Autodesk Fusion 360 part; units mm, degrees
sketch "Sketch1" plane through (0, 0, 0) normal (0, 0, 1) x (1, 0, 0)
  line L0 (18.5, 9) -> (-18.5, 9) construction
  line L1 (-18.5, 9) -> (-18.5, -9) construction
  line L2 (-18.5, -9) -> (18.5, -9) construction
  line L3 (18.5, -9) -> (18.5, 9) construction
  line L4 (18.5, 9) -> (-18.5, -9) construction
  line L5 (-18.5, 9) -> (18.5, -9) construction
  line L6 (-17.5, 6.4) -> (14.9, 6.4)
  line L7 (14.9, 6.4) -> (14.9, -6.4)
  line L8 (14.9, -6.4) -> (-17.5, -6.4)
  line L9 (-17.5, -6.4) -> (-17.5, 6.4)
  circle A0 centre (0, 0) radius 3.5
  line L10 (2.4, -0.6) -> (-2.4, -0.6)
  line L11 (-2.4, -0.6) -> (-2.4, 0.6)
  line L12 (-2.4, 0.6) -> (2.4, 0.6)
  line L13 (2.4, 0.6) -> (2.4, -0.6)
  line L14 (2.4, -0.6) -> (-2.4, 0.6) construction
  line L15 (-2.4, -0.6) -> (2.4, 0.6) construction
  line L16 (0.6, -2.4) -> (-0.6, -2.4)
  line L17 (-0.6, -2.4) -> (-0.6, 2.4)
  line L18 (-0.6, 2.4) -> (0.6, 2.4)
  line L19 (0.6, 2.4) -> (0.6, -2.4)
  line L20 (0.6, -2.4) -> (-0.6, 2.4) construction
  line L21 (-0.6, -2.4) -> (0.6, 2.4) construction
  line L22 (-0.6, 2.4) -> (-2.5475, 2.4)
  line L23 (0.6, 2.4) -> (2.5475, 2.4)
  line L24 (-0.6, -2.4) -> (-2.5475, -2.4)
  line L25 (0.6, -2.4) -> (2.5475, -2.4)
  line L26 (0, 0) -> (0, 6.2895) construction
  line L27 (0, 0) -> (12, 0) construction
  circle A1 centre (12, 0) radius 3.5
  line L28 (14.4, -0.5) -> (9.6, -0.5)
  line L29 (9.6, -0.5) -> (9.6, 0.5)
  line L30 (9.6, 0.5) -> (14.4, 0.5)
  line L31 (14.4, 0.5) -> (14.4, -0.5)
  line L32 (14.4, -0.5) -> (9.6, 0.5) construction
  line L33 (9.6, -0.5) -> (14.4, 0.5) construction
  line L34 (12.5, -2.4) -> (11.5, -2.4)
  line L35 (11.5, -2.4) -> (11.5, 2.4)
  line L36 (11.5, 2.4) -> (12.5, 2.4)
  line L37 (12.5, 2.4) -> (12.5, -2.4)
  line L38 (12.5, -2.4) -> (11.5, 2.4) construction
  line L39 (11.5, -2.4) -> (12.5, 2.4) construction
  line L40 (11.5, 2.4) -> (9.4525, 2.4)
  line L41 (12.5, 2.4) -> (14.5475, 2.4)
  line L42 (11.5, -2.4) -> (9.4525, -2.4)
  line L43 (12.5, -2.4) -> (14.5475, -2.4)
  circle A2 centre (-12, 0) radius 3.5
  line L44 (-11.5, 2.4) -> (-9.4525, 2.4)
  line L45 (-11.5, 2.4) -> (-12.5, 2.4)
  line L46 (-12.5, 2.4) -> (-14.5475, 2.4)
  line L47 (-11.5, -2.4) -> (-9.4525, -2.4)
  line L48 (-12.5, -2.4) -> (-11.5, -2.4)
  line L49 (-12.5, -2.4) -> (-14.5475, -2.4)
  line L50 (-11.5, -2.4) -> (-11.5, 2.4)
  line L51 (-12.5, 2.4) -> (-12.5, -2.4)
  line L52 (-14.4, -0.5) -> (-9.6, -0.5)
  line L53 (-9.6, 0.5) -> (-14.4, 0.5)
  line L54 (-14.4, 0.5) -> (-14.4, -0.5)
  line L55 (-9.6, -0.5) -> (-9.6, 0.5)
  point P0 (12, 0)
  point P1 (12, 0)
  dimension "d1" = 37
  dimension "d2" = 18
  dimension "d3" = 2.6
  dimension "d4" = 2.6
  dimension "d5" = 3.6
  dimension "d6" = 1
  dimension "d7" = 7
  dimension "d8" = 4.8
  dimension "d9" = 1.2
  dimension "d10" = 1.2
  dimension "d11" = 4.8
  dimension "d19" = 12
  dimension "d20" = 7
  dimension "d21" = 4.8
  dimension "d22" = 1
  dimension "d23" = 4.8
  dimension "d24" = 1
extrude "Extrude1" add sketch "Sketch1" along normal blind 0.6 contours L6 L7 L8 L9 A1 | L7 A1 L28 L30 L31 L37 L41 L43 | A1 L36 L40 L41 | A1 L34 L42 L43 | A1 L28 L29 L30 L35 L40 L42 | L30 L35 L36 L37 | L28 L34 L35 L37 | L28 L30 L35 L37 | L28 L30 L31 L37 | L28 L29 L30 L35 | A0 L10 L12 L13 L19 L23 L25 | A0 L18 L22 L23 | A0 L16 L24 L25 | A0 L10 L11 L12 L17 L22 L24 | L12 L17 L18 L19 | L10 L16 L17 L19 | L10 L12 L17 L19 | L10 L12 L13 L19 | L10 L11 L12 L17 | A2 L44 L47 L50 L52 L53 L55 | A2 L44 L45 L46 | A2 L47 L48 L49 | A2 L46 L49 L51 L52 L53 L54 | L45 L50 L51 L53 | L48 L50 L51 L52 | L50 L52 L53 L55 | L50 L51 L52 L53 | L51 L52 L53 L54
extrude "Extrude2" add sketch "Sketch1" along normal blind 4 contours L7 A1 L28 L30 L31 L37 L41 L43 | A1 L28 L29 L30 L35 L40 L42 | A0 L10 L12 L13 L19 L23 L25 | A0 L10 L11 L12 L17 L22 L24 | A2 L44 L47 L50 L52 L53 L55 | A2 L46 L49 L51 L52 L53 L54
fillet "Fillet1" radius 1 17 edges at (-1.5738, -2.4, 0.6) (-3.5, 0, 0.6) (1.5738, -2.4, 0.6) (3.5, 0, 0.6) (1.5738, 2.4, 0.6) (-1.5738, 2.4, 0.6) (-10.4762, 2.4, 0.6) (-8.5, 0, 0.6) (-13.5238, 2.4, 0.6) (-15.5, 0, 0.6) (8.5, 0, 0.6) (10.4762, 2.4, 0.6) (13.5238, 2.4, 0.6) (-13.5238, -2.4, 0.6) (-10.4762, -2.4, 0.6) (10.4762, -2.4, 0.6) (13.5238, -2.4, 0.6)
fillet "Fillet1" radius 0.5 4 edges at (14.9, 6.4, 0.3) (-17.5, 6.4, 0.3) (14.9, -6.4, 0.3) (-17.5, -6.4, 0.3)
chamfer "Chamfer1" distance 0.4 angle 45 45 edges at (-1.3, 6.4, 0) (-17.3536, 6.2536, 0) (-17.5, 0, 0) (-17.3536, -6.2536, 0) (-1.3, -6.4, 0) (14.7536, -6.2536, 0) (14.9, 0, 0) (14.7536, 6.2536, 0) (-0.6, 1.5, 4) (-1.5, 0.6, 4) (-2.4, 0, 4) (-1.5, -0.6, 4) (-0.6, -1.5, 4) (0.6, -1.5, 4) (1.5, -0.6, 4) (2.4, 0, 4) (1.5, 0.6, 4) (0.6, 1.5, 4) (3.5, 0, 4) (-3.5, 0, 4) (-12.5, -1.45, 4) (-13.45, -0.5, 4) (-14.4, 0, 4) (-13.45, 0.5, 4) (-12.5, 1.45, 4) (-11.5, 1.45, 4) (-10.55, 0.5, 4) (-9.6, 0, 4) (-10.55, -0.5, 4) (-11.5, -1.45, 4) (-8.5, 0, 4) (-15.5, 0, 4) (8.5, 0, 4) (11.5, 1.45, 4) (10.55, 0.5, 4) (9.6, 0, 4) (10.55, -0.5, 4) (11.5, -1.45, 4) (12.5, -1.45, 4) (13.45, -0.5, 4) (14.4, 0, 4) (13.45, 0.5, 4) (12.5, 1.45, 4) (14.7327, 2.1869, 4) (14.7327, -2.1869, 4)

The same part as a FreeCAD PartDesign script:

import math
import FreeCAD as App
import Part
import Sketcher
Q = App.Units.Quantity


def edges_at(feature, points):
    """Names of the edges that pass closest to the given points."""
    edges = feature.Shape.Edges
    near = lambda p: min(range(len(edges)), key=lambda i: edges[i].distToShape(Part.Vertex(*p))[0])
    return sorted({f"Edge{near(p) + 1}" for p in points})


def add_polygon(sketch, points):
    """Adds a closed chain of lines whose ends are joined by coincident constraints."""
    first, n = sketch.GeometryCount, len(points)
    for a, b in zip(points, points[1:] + points[:1]):
        sketch.addGeometry(Part.LineSegment(App.Vector(*a, 0), App.Vector(*b, 0)), False)
    for i in range(n):
        sketch.addConstraint(Sketcher.Constraint("Coincident", first + i, 2, first + (i + 1) % n, 1))

doc = App.newDocument("Part")
body = doc.addObject("PartDesign::Body", "Body")

sketch1 = body.newObject("Sketcher::SketchObject", "Sketch")
sketch1.AttachmentSupport = (doc.getObject("XY_Plane"), [""])
sketch1.MapMode = "FlatFace"
add_polygon(sketch1, [(15, 6), (-18, 6), (-18, -6), (15, -6)])
sketch1.addConstraint(Sketcher.Constraint("Horizontal", 0))
sketch1.addConstraint(Sketcher.Constraint("Vertical", 1))
sketch1.addConstraint(Sketcher.Constraint("Horizontal", 2))
sketch1.addConstraint(Sketcher.Constraint("Vertical", 3))
sketch1.addConstraint(Sketcher.Constraint("DistanceX", 0, 2, 0, 1, Q("32.4 mm")))
sketch1.addConstraint(Sketcher.Constraint("DistanceY", 1, 2, 1, 1, Q("12.8 mm")))
sketch1.addConstraint(Sketcher.Constraint("DistanceX", 0, 2, -1, 1, Q("17.5 mm")))
sketch1.addConstraint(Sketcher.Constraint("DistanceY", -1, 1, 0, 2, Q("6.4 mm")))
pad1 = body.newObject("PartDesign::Pad", "Pad")
pad1.Profile = sketch1
pad1.Length = 0.6

sketch2 = body.newObject("Sketcher::SketchObject", "Sketch001")
sketch2.AttachmentSupport = (doc.getObject("XY_Plane"), [""])
sketch2.MapMode = "FlatFace"
sketch2.addGeometry(Part.LineSegment(App.Vector(14.9, -2, 0), App.Vector(14.9, 2, 0)), False)
sketch2.addGeometry(Part.ArcOfCircle(Part.Circle(App.Vector(12, 0, 0), App.Vector(0, 0, 1), 3.5), math.radians(34.05), math.radians(43.29)), False)
sketch2.addGeometry(Part.LineSegment(App.Vector(14.5, 2.4, 0), App.Vector(12.5, 2.4, 0)), False)
sketch2.addGeometry(Part.LineSegment(App.Vector(12.5, 2.4, 0), App.Vector(12.5, 0.5, 0)), False)
sketch2.addGeometry(Part.LineSegment(App.Vector(12.5, 0.5, 0), App.Vector(14.4, 0.5, 0)), False)
sketch2.addGeometry(Part.LineSegment(App.Vector(14.4, 0.5, 0), App.Vector(14.4, -0.5, 0)), False)
sketch2.addGeometry(Part.LineSegment(App.Vector(14.4, -0.5, 0), App.Vector(12.5, -0.5, 0)), False)
sketch2.addGeometry(Part.LineSegment(App.Vector(12.5, -0.5, 0), App.Vector(12.5, -2.4, 0)), False)
sketch2.addGeometry(Part.LineSegment(App.Vector(12.5, -2.4, 0), App.Vector(14.5, -2.4, 0)), False)
sketch2.addGeometry(Part.ArcOfCircle(Part.Circle(App.Vector(12, 0, 0), App.Vector(0, 0, 1), 3.5), math.radians(-43.29), math.radians(-34.05)), False)
sketch2.addGeometry(Part.LineSegment(App.Vector(11.5, 2.4, 0), App.Vector(9.5, 2.4, 0)), False)
sketch2.addGeometry(Part.ArcOfCircle(Part.Circle(App.Vector(12, 0, 0), App.Vector(0, 0, 1), 3.5), math.radians(137), math.radians(223)), False)
sketch2.addGeometry(Part.LineSegment(App.Vector(9.5, -2.4, 0), App.Vector(11.5, -2.4, 0)), False)
sketch2.addGeometry(Part.LineSegment(App.Vector(11.5, -2.4, 0), App.Vector(11.5, -0.5, 0)), False)
sketch2.addGeometry(Part.LineSegment(App.Vector(11.5, -0.5, 0), App.Vector(9.6, -0.5, 0)), False)
sketch2.addGeometry(Part.LineSegment(App.Vector(9.6, -0.5, 0), App.Vector(9.6, 0.5, 0)), False)
sketch2.addGeometry(Part.LineSegment(App.Vector(9.6, 0.5, 0), App.Vector(11.5, 0.5, 0)), False)
sketch2.addGeometry(Part.LineSegment(App.Vector(11.5, 0.5, 0), App.Vector(11.5, 2.4, 0)), False)
sketch2.addGeometry(Part.ArcOfCircle(Part.Circle(App.Vector(0, 0, 0), App.Vector(0, 0, 1), 3.5), math.radians(-43), math.radians(43)), False)
sketch2.addGeometry(Part.LineSegment(App.Vector(2.5, 2.4, 0), App.Vector(0.6, 2.4, 0)), False)
sketch2.addGeometry(Part.LineSegment(App.Vector(0.6, 2.4, 0), App.Vector(0.6, 0.6, 0)), False)
sketch2.addGeometry(Part.LineSegment(App.Vector(0.6, 0.6, 0), App.Vector(2.4, 0.6, 0)), False)
sketch2.addGeometry(Part.LineSegment(App.Vector(2.4, 0.6, 0), App.Vector(2.4, -0.6, 0)), False)
sketch2.addGeometry(Part.LineSegment(App.Vector(2.4, -0.6, 0), App.Vector(0.6, -0.6, 0)), False)
sketch2.addGeometry(Part.LineSegment(App.Vector(0.6, -0.6, 0), App.Vector(0.6, -2.4, 0)), False)
sketch2.addGeometry(Part.LineSegment(App.Vector(0.6, -2.4, 0), App.Vector(2.5, -2.4, 0)), False)
sketch2.addGeometry(Part.LineSegment(App.Vector(-0.6, 2.4, 0), App.Vector(-2.5, 2.4, 0)), False)
sketch2.addGeometry(Part.ArcOfCircle(Part.Circle(App.Vector(0, 0, 0), App.Vector(0, 0, 1), 3.5), math.radians(137), math.radians(223)), False)
sketch2.addGeometry(Part.LineSegment(App.Vector(-2.5, -2.4, 0), App.Vector(-0.6, -2.4, 0)), False)
sketch2.addGeometry(Part.LineSegment(App.Vector(-0.6, -2.4, 0), App.Vector(-0.6, -0.6, 0)), False)
sketch2.addGeometry(Part.LineSegment(App.Vector(-0.6, -0.6, 0), App.Vector(-2.4, -0.6, 0)), False)
sketch2.addGeometry(Part.LineSegment(App.Vector(-2.4, -0.6, 0), App.Vector(-2.4, 0.6, 0)), False)
sketch2.addGeometry(Part.LineSegment(App.Vector(-2.4, 0.6, 0), App.Vector(-0.6, 0.6, 0)), False)
sketch2.addGeometry(Part.LineSegment(App.Vector(-0.6, 0.6, 0), App.Vector(-0.6, 2.4, 0)), False)
sketch2.addGeometry(Part.ArcOfCircle(Part.Circle(App.Vector(-12, 0, 0), App.Vector(0, 0, 1), 3.5), math.radians(-43), math.radians(43)), False)
sketch2.addGeometry(Part.LineSegment(App.Vector(-9.5, 2.4, 0), App.Vector(-11.5, 2.4, 0)), False)
sketch2.addGeometry(Part.LineSegment(App.Vector(-11.5, 2.4, 0), App.Vector(-11.5, 0.5, 0)), False)
sketch2.addGeometry(Part.LineSegment(App.Vector(-11.5, 0.5, 0), App.Vector(-9.6, 0.5, 0)), False)
sketch2.addGeometry(Part.LineSegment(App.Vector(-9.6, 0.5, 0), App.Vector(-9.6, -0.5, 0)), False)
sketch2.addGeometry(Part.LineSegment(App.Vector(-9.6, -0.5, 0), App.Vector(-11.5, -0.5, 0)), False)
sketch2.addGeometry(Part.LineSegment(App.Vector(-11.5, -0.5, 0), App.Vector(-11.5, -2.4, 0)), False)
sketch2.addGeometry(Part.LineSegment(App.Vector(-11.5, -2.4, 0), App.Vector(-9.5, -2.4, 0)), False)
sketch2.addGeometry(Part.LineSegment(App.Vector(-12.5, 2.4, 0), App.Vector(-14.5, 2.4, 0)), False)
sketch2.addGeometry(Part.ArcOfCircle(Part.Circle(App.Vector(-12, 0, 0), App.Vector(0, 0, 1), 3.5), math.radians(137), math.radians(223)), False)
sketch2.addGeometry(Part.LineSegment(App.Vector(-14.5, -2.4, 0), App.Vector(-12.5, -2.4, 0)), False)
sketch2.addGeometry(Part.LineSegment(App.Vector(-12.5, -2.4, 0), App.Vector(-12.5, -0.5, 0)), False)
sketch2.addGeometry(Part.LineSegment(App.Vector(-12.5, -0.5, 0), App.Vector(-14.4, -0.5, 0)), False)
sketch2.addGeometry(Part.LineSegment(App.Vector(-14.4, -0.5, 0), App.Vector(-14.4, 0.5, 0)), False)
sketch2.addGeometry(Part.LineSegment(App.Vector(-14.4, 0.5, 0), App.Vector(-12.5, 0.5, 0)), False)
sketch2.addGeometry(Part.LineSegment(App.Vector(-12.5, 0.5, 0), App.Vector(-12.5, 2.4, 0)), False)
sketch2.addConstraint(Sketcher.Constraint("Coincident", 0, 2, 1, 1))
sketch2.addConstraint(Sketcher.Constraint("Coincident", 1, 2, 2, 1))
sketch2.addConstraint(Sketcher.Constraint("Coincident", 2, 2, 3, 1))
sketch2.addConstraint(Sketcher.Constraint("Coincident", 3, 2, 4, 1))
sketch2.addConstraint(Sketcher.Constraint("Coincident", 4, 2, 5, 1))
sketch2.addConstraint(Sketcher.Constraint("Coincident", 5, 2, 6, 1))
sketch2.addConstraint(Sketcher.Constraint("Coincident", 6, 2, 7, 1))
sketch2.addConstraint(Sketcher.Constraint("Coincident", 7, 2, 8, 1))
sketch2.addConstraint(Sketcher.Constraint("Coincident", 8, 2, 9, 1))
sketch2.addConstraint(Sketcher.Constraint("Coincident", 9, 2, 0, 1))
sketch2.addConstraint(Sketcher.Constraint("Coincident", 10, 2, 11, 1))
sketch2.addConstraint(Sketcher.Constraint("Coincident", 11, 2, 12, 1))
sketch2.addConstraint(Sketcher.Constraint("Coincident", 12, 2, 13, 1))
sketch2.addConstraint(Sketcher.Constraint("Coincident", 13, 2, 14, 1))
sketch2.addConstraint(Sketcher.Constraint("Coincident", 14, 2, 15, 1))
sketch2.addConstraint(Sketcher.Constraint("Coincident", 15, 2, 16, 1))
sketch2.addConstraint(Sketcher.Constraint("Coincident", 16, 2, 17, 1))
sketch2.addConstraint(Sketcher.Constraint("Coincident", 17, 2, 10, 1))
sketch2.addConstraint(Sketcher.Constraint("Coincident", 18, 2, 19, 1))
sketch2.addConstraint(Sketcher.Constraint("Coincident", 19, 2, 20, 1))
sketch2.addConstraint(Sketcher.Constraint("Coincident", 20, 2, 21, 1))
sketch2.addConstraint(Sketcher.Constraint("Coincident", 21, 2, 22, 1))
sketch2.addConstraint(Sketcher.Constraint("Coincident", 22, 2, 23, 1))
sketch2.addConstraint(Sketcher.Constraint("Coincident", 23, 2, 24, 1))
sketch2.addConstraint(Sketcher.Constraint("Coincident", 24, 2, 25, 1))
sketch2.addConstraint(Sketcher.Constraint("Coincident", 25, 2, 18, 1))
sketch2.addConstraint(Sketcher.Constraint("Coincident", 26, 2, 27, 1))
sketch2.addConstraint(Sketcher.Constraint("Coincident", 27, 2, 28, 1))
sketch2.addConstraint(Sketcher.Constraint("Coincident", 28, 2, 29, 1))
sketch2.addConstraint(Sketcher.Constraint("Coincident", 29, 2, 30, 1))
sketch2.addConstraint(Sketcher.Constraint("Coincident", 30, 2, 31, 1))
sketch2.addConstraint(Sketcher.Constraint("Coincident", 31, 2, 32, 1))
sketch2.addConstraint(Sketcher.Constraint("Coincident", 32, 2, 33, 1))
sketch2.addConstraint(Sketcher.Constraint("Coincident", 33, 2, 26, 1))
sketch2.addConstraint(Sketcher.Constraint("Coincident", 34, 2, 35, 1))
sketch2.addConstraint(Sketcher.Constraint("Coincident", 35, 2, 36, 1))
sketch2.addConstraint(Sketcher.Constraint("Coincident", 36, 2, 37, 1))
sketch2.addConstraint(Sketcher.Constraint("Coincident", 37, 2, 38, 1))
sketch2.addConstraint(Sketcher.Constraint("Coincident", 38, 2, 39, 1))
sketch2.addConstraint(Sketcher.Constraint("Coincident", 39, 2, 40, 1))
sketch2.addConstraint(Sketcher.Constraint("Coincident", 40, 2, 41, 1))
sketch2.addConstraint(Sketcher.Constraint("Coincident", 41, 2, 34, 1))
sketch2.addConstraint(Sketcher.Constraint("Coincident", 42, 2, 43, 1))
sketch2.addConstraint(Sketcher.Constraint("Coincident", 43, 2, 44, 1))
sketch2.addConstraint(Sketcher.Constraint("Coincident", 44, 2, 45, 1))
sketch2.addConstraint(Sketcher.Constraint("Coincident", 45, 2, 46, 1))
sketch2.addConstraint(Sketcher.Constraint("Coincident", 46, 2, 47, 1))
sketch2.addConstraint(Sketcher.Constraint("Coincident", 47, 2, 48, 1))
sketch2.addConstraint(Sketcher.Constraint("Coincident", 48, 2, 49, 1))
sketch2.addConstraint(Sketcher.Constraint("Coincident", 49, 2, 42, 1))
sketch2.addConstraint(Sketcher.Constraint("Vertical", 0))
sketch2.addConstraint(Sketcher.Constraint("Horizontal", 2))
sketch2.addConstraint(Sketcher.Constraint("Vertical", 3))
sketch2.addConstraint(Sketcher.Constraint("Horizontal", 4))
sketch2.addConstraint(Sketcher.Constraint("Vertical", 5))
sketch2.addConstraint(Sketcher.Constraint("Horizontal", 6))
sketch2.addConstraint(Sketcher.Constraint("Vertical", 7))
sketch2.addConstraint(Sketcher.Constraint("Horizontal", 8))
sketch2.addConstraint(Sketcher.Constraint("Horizontal", 10))
sketch2.addConstraint(Sketcher.Constraint("Horizontal", 12))
sketch2.addConstraint(Sketcher.Constraint("Vertical", 13))
sketch2.addConstraint(Sketcher.Constraint("Horizontal", 14))
sketch2.addConstraint(Sketcher.Constraint("Vertical", 15))
sketch2.addConstraint(Sketcher.Constraint("Horizontal", 16))
sketch2.addConstraint(Sketcher.Constraint("Vertical", 17))
sketch2.addConstraint(Sketcher.Constraint("Horizontal", 19))
sketch2.addConstraint(Sketcher.Constraint("Vertical", 20))
sketch2.addConstraint(Sketcher.Constraint("Horizontal", 21))
sketch2.addConstraint(Sketcher.Constraint("Vertical", 22))
sketch2.addConstraint(Sketcher.Constraint("Horizontal", 23))
sketch2.addConstraint(Sketcher.Constraint("Vertical", 24))
sketch2.addConstraint(Sketcher.Constraint("Horizontal", 25))
sketch2.addConstraint(Sketcher.Constraint("Horizontal", 26))
sketch2.addConstraint(Sketcher.Constraint("Horizontal", 28))
sketch2.addConstraint(Sketcher.Constraint("Vertical", 29))
sketch2.addConstraint(Sketcher.Constraint("Horizontal", 30))
sketch2.addConstraint(Sketcher.Constraint("Vertical", 31))
sketch2.addConstraint(Sketcher.Constraint("Horizontal", 32))
sketch2.addConstraint(Sketcher.Constraint("Vertical", 33))
sketch2.addConstraint(Sketcher.Constraint("Horizontal", 35))
sketch2.addConstraint(Sketcher.Constraint("Vertical", 36))
sketch2.addConstraint(Sketcher.Constraint("Horizontal", 37))
sketch2.addConstraint(Sketcher.Constraint("Vertical", 38))
sketch2.addConstraint(Sketcher.Constraint("Horizontal", 39))
sketch2.addConstraint(Sketcher.Constraint("Vertical", 40))
sketch2.addConstraint(Sketcher.Constraint("Horizontal", 41))
sketch2.addConstraint(Sketcher.Constraint("Horizontal", 42))
sketch2.addConstraint(Sketcher.Constraint("Horizontal", 44))
sketch2.addConstraint(Sketcher.Constraint("Vertical", 45))
sketch2.addConstraint(Sketcher.Constraint("Horizontal", 46))
sketch2.addConstraint(Sketcher.Constraint("Vertical", 47))
sketch2.addConstraint(Sketcher.Constraint("Horizontal", 48))
sketch2.addConstraint(Sketcher.Constraint("Vertical", 49))
sketch2.addConstraint(Sketcher.Constraint("Coincident", 18, 3, -1, 1))
sketch2.addConstraint(Sketcher.Constraint("Coincident", 27, 3, -1, 1))
sketch2.addConstraint(Sketcher.Constraint("Coincident", 9, 3, 1, 3))
sketch2.addConstraint(Sketcher.Constraint("Coincident", 11, 3, 1, 3))
sketch2.addConstraint(Sketcher.Constraint("Coincident", 43, 3, 34, 3))
sketch2.addConstraint(Sketcher.Constraint("Equal", 1, 9))
sketch2.addConstraint(Sketcher.Constraint("Equal", 9, 11))
sketch2.addConstraint(Sketcher.Constraint("Equal", 11, 18))
sketch2.addConstraint(Sketcher.Constraint("Equal", 18, 27))
sketch2.addConstraint(Sketcher.Constraint("Equal", 27, 34))
sketch2.addConstraint(Sketcher.Constraint("Equal", 34, 43))
sketch2.addConstraint(Sketcher.Constraint("Symmetric", 1, 3, 34, 3, -1, 1))
sketch2.addConstraint(Sketcher.Constraint("Symmetric", 19, 2, 28, 2, -1, 1))
sketch2.addConstraint(Sketcher.Constraint("Symmetric", 21, 2, 30, 2, -1, 1))
sketch2.addConstraint(Sketcher.Constraint("Symmetric", 23, 2, 32, 2, -1, 1))
sketch2.addConstraint(Sketcher.Constraint("Symmetric", 12, 2, 35, 2, -1, 1))
sketch2.addConstraint(Sketcher.Constraint("Symmetric", 14, 2, 37, 2, -1, 1))
sketch2.addConstraint(Sketcher.Constraint("Symmetric", 16, 2, 39, 2, -1, 1))
sketch2.addConstraint(Sketcher.Constraint("Symmetric", 2, 2, 44, 2, -1, 1))
sketch2.addConstraint(Sketcher.Constraint("Symmetric", 4, 2, 46, 2, -1, 1))
sketch2.addConstraint(Sketcher.Constraint("Symmetric", 6, 2, 48, 2, -1, 1))
sketch2.addConstraint(Sketcher.Constraint("Symmetric", 24, 2, 28, 2, -2))
sketch2.addConstraint(Sketcher.Constraint("Symmetric", 10, 2, 34, 2, -2))
sketch2.addConstraint(Sketcher.Constraint("Symmetric", 16, 2, 36, 2, -2))
sketch2.addConstraint(Sketcher.Constraint("Symmetric", 7, 2, 44, 2, -2))
sketch2.addConstraint(Sketcher.Constraint("Horizontal", 2, 2, 10, 2))
sketch2.addConstraint(Sketcher.Constraint("Horizontal", 6, 2, 13, 2))
sketch2.addConstraint(Sketcher.Constraint("Horizontal", 4, 2, 15, 2))
sketch2.addConstraint(Sketcher.Constraint("Horizontal", 17, 2, 18, 2))
sketch2.addConstraint(Sketcher.Constraint("Horizontal", 19, 2, 26, 2))
sketch2.addConstraint(Sketcher.Constraint("Horizontal", 23, 2, 29, 2))
sketch2.addConstraint(Sketcher.Constraint("Horizontal", 28, 2, 40, 2))
sketch2.addConstraint(Sketcher.Constraint("Horizontal", 35, 2, 42, 2))
sketch2.addConstraint(Sketcher.Constraint("Equal", 8, 10))
sketch2.addConstraint(Sketcher.Constraint("Equal", 6, 14))
sketch2.addConstraint(Sketcher.Constraint("Equal", 48, 3))
sketch2.addConstraint(Sketcher.Constraint("Equal", 32, 20))
sketch2.addConstraint(Sketcher.Constraint("Radius", 1, Q("3.5 mm")))
sketch2.addConstraint(Sketcher.Constraint("DistanceY", 5, 2, 5, 1, Q("1 mm")))
sketch2.addConstraint(Sketcher.Constraint("DistanceY", 22, 2, 22, 1, Q("1.2 mm")))
sketch2.addConstraint(Sketcher.Constraint("DistanceX", -1, 1, 1, 3, Q("12 mm")))
sketch2.addConstraint(Sketcher.Constraint("DistanceX", 12, 2, 7, 2, Q("1 mm")))
sketch2.addConstraint(Sketcher.Constraint("DistanceX", 28, 2, 24, 2, Q("1.2 mm")))
sketch2.addConstraint(Sketcher.Constraint("DistanceX", 4, 1, 4, 2, Q("1.9 mm")))
sketch2.addConstraint(Sketcher.Constraint("DistanceX", -1, 1, 0, 2, Q("14.9 mm")))
pad2 = body.newObject("PartDesign::Pad", "Pad001")
pad2.Profile = sketch2
pad2.Length = 4
doc.recompute()

fillet = body.newObject("PartDesign::Fillet", "Fillet")
fillet.Base = (pad2, edges_at(pad2, [
    (-1.574, -2.4, 0.6),
    (-3.5, 0, 0.6),
    (1.574, -2.4, 0.6),
    (3.5, 0, 0.6),
    (1.574, 2.4, 0.6),
    (-1.574, 2.4, 0.6),
    (-10.476, 2.4, 0.6),
    (-8.5, 0, 0.6),
    (-13.524, 2.4, 0.6),
    (-15.5, 0, 0.6),
    (8.5, 0, 0.6),
    (10.476, 2.4, 0.6),
    (13.524, 2.4, 0.6),
    (-13.524, -2.4, 0.6),
    (-10.476, -2.4, 0.6),
    (10.476, -2.4, 0.6),
    (13.524, -2.4, 0.6),
]))
fillet.Radius = 1
doc.recompute()

fillet2 = body.newObject("PartDesign::Fillet", "Fillet001")
fillet2.Base = (fillet, edges_at(fillet, [
    (14.9, 6.4, 0.3),
    (-17.5, 6.4, 0.3),
    (14.9, -6.4, 0.3),
    (-17.5, -6.4, 0.3),
]))
fillet2.Radius = 0.5
doc.recompute()

chamfer = body.newObject("PartDesign::Chamfer", "Chamfer")
chamfer.Base = (fillet2, edges_at(fillet2, [
    (-1.3, 6.4, 0),
    (-17.354, 6.254, 0),
    (-17.5, 0, 0),
    (-17.354, -6.254, 0),
    (-1.3, -6.4, 0),
    (14.754, -6.254, 0),
    (14.9, 0, 0),
    (14.754, 6.254, 0),
    (-0.6, 1.5, 4),
    (-1.5, 0.6, 4),
    (-2.4, 0, 4),
    (-1.5, -0.6, 4),
    (-0.6, -1.5, 4),
    (0.6, -1.5, 4),
    (1.5, -0.6, 4),
    (2.4, 0, 4),
    (1.5, 0.6, 4),
    (0.6, 1.5, 4),
    (3.5, 0, 4),
    (-3.5, 0, 4),
    (-12.5, -1.45, 4),
    (-13.45, -0.5, 4),
    (-14.4, 0, 4),
    (-13.45, 0.5, 4),
    (-12.5, 1.45, 4),
    (-11.5, 1.45, 4),
    (-10.55, 0.5, 4),
    (-9.6, 0, 4),
    (-10.55, -0.5, 4),
    (-11.5, -1.45, 4),
    (-8.5, 0, 4),
    (-15.5, 0, 4),
    (8.5, 0, 4),
    (11.5, 1.45, 4),
    (10.55, 0.5, 4),
    (9.6, 0, 4),
    (10.55, -0.5, 4),
    (11.5, -1.45, 4),
    (12.5, -1.45, 4),
    (13.45, -0.5, 4),
    (14.4, 0, 4),
    (13.45, 0.5, 4),
    (12.5, 1.45, 4),
    (14.733, 2.187, 4),
    (14.733, -2.187, 4),
]))
chamfer.Size = 0.4

doc.recompute()
